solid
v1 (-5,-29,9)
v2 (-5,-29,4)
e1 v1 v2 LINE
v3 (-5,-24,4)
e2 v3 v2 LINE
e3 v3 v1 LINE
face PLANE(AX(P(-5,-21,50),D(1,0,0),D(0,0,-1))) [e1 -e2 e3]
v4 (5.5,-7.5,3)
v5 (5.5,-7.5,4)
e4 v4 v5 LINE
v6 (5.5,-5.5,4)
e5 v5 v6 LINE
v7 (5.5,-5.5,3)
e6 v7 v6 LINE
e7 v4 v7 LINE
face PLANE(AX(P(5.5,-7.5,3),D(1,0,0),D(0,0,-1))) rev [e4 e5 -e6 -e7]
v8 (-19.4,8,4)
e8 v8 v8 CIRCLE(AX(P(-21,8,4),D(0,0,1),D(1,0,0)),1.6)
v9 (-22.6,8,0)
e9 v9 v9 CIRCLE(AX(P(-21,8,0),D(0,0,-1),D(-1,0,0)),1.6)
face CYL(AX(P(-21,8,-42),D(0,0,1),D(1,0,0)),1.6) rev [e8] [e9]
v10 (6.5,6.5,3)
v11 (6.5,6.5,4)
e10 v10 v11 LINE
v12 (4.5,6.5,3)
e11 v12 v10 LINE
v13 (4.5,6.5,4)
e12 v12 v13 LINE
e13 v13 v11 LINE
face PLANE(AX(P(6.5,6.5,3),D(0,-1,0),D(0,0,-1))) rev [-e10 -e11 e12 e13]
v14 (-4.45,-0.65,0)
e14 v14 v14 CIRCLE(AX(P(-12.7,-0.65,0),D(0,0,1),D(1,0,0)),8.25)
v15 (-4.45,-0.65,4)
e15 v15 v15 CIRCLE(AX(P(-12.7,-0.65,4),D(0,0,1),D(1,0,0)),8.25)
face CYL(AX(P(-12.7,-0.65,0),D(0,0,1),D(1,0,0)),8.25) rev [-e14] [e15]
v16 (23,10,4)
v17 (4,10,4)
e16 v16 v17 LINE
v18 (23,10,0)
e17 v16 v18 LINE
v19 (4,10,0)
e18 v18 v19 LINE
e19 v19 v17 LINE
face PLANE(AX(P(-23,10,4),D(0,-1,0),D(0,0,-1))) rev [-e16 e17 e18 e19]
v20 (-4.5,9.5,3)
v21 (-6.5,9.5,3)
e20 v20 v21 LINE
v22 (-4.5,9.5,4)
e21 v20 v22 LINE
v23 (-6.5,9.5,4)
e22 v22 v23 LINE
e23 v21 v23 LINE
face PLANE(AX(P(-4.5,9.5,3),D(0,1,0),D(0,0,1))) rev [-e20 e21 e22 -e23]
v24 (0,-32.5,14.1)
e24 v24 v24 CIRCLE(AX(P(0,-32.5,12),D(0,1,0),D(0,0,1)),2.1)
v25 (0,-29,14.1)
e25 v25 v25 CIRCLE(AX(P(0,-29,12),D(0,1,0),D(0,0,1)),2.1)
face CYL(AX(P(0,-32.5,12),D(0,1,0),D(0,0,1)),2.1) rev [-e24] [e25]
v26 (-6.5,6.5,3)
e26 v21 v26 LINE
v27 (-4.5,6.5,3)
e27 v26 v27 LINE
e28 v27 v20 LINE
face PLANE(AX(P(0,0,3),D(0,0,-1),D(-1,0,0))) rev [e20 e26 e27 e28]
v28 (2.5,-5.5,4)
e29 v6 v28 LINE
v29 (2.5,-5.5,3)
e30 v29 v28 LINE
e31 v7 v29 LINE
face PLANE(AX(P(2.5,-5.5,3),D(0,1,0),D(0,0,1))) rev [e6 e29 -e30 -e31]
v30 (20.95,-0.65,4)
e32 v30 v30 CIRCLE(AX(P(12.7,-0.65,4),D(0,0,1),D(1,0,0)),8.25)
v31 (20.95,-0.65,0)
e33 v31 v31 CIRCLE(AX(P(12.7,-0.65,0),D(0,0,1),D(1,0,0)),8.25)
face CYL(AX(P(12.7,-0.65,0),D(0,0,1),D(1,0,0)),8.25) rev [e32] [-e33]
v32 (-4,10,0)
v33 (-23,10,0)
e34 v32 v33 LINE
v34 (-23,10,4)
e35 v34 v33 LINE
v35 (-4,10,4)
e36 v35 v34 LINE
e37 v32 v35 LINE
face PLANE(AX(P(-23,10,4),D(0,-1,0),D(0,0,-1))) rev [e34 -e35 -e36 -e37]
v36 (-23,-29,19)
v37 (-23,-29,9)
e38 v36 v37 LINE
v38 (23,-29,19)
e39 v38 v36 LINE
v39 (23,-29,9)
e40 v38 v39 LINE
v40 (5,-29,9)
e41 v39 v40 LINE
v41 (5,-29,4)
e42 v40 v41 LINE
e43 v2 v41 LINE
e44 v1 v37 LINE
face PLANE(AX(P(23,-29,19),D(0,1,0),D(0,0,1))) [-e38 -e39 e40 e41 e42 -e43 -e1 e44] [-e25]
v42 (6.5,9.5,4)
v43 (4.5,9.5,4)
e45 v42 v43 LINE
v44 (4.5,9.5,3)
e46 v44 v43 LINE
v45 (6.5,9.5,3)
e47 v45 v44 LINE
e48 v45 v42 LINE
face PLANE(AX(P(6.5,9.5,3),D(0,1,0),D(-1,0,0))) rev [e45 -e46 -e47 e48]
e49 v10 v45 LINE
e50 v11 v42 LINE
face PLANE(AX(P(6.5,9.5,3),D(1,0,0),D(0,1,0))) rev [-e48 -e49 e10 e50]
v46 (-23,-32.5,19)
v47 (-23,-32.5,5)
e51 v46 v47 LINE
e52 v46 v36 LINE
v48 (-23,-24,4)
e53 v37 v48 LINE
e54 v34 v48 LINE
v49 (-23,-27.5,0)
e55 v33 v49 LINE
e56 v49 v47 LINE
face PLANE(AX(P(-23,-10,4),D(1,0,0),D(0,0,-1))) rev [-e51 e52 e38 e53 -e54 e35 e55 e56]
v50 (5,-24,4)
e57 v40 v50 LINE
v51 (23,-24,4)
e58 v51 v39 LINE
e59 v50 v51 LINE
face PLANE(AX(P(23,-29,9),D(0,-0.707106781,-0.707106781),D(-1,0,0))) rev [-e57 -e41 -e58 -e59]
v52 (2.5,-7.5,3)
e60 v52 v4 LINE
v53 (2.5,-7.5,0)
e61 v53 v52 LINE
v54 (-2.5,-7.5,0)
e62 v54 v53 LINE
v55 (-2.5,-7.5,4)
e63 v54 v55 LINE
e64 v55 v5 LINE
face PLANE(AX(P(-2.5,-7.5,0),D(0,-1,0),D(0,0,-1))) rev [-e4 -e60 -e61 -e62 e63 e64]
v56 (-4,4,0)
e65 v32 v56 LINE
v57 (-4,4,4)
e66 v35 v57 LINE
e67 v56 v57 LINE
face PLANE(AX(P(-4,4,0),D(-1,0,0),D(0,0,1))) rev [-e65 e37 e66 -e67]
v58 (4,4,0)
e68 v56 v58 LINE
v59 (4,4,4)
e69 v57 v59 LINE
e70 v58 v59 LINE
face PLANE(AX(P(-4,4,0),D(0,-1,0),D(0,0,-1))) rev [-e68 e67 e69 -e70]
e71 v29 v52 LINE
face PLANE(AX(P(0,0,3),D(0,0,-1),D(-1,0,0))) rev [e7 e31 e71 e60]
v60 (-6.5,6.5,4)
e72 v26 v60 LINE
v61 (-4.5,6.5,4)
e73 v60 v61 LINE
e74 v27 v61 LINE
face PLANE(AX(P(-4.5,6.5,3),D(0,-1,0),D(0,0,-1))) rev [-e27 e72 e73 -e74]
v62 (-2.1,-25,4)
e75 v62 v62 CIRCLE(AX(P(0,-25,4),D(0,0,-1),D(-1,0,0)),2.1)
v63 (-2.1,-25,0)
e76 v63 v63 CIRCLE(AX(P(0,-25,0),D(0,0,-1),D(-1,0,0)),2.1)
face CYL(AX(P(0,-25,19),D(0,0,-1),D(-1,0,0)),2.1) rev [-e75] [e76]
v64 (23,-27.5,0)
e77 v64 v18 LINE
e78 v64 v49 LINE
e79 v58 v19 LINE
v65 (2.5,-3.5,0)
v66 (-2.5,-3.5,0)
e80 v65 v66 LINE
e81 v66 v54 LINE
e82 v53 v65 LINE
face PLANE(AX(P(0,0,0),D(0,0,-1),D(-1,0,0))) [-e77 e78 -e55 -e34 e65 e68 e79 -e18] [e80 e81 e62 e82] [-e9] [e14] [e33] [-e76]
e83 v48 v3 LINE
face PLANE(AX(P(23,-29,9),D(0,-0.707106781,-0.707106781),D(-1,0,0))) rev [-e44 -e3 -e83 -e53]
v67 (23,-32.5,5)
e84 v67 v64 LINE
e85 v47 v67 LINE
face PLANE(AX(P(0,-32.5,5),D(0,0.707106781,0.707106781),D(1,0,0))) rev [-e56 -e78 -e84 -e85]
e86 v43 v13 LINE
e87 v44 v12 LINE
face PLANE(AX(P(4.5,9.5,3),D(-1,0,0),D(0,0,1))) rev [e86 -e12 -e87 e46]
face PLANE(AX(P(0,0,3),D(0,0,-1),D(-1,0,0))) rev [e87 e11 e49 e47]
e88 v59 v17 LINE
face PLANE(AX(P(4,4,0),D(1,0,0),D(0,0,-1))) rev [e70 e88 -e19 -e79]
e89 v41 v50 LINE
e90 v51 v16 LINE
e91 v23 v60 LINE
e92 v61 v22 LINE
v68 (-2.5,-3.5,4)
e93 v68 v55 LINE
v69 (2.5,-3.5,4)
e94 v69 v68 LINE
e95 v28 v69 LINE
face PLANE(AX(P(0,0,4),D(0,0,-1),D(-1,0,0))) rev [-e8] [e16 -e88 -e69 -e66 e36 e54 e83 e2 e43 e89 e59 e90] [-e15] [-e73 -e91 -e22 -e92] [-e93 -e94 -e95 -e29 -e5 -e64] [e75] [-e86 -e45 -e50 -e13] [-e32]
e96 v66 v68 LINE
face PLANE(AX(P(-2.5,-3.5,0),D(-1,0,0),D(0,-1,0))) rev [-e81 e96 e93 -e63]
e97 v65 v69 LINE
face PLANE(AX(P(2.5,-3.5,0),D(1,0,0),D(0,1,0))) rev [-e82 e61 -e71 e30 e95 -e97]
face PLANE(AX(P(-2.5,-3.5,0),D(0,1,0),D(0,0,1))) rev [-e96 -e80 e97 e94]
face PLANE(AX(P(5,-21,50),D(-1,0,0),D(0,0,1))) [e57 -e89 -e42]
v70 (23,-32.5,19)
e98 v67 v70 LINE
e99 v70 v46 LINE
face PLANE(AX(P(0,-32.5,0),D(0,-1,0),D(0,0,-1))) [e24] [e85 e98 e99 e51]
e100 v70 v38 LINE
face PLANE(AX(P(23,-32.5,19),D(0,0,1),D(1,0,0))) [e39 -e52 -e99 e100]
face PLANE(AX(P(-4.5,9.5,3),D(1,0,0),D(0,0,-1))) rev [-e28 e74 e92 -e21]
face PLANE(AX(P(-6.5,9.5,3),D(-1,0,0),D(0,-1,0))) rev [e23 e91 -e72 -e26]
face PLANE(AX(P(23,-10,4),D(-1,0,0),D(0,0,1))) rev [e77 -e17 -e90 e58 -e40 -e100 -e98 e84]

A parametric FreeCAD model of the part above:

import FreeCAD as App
import Part
import Sketcher
Q = App.Units.Quantity


def edges_at(feature, points):
    """Names of the edges that pass closest to the given points."""
    edges = feature.Shape.Edges
    near = lambda p: min(range(len(edges)), key=lambda i: edges[i].distToShape(Part.Vertex(*p))[0])
    return sorted({f"Edge{near(p) + 1}" for p in points})

doc = App.newDocument("Part")
body = doc.addObject("PartDesign::Body", "Body")

# Sketch on XY plane
sketch1 = body.newObject("Sketcher::SketchObject", "Sketch")
sketch1.AttachmentSupport = (doc.getObject("XY_Plane"), [""])
sketch1.MapMode = "FlatFace"
sketch1.addGeometry(Part.LineSegment(App.Vector(-23, 10, 0), App.Vector(-23, -10, 0)), False)
sketch1.addGeometry(Part.LineSegment(App.Vector(-23, -10, 0), App.Vector(23, -10, 0)), False)
sketch1.addGeometry(Part.LineSegment(App.Vector(23, -10, 0), App.Vector(23, 10, 0)), False)
sketch1.addGeometry(Part.LineSegment(App.Vector(23, 10, 0), App.Vector(-23, 10, 0)), False)
sketch1.addConstraint(Sketcher.Constraint("Coincident", 0, 2, 1, 1))
sketch1.addConstraint(Sketcher.Constraint("Coincident", 1, 2, 2, 1))
sketch1.addConstraint(Sketcher.Constraint("Coincident", 2, 2, 3, 1))
sketch1.addConstraint(Sketcher.Constraint("Coincident", 3, 2, 0, 1))
sketch1.addConstraint(Sketcher.Constraint("Vertical", 0))
sketch1.addConstraint(Sketcher.Constraint("Horizontal", 1))
sketch1.addConstraint(Sketcher.Constraint("Vertical", 2))
sketch1.addConstraint(Sketcher.Constraint("Horizontal", 3))
sketch1.addConstraint(Sketcher.Constraint("Symmetric", 0, 2, 2, 2, -1, 1))
sketch1.addConstraint(Sketcher.Constraint("DistanceX", 1, 1, 1, 2, Q("46 mm")))
sketch1.addConstraint(Sketcher.Constraint("DistanceY", 0, 2, 0, 1, Q("20 mm")))
pad1 = body.newObject("PartDesign::Pad", "Pad")
pad1.Profile = sketch1
pad1.Length = 4

# Sketch on XY plane
sketch2 = body.newObject("Sketcher::SketchObject", "Sketch001")
sketch2.AttachmentSupport = (doc.getObject("XY_Plane"), [""])
sketch2.MapMode = "FlatFace"
sketch2.AttachmentOffset = App.Placement(App.Vector(0, 0, 4), App.Rotation())
sketch2.addGeometry(Part.Circle(App.Vector(-13, -1, 0), App.Vector(0, 0, 1), 8), False)
sketch2.addGeometry(Part.Circle(App.Vector(13, -1, 0), App.Vector(0, 0, 1), 8), False)
sketch2.addConstraint(Sketcher.Constraint("Equal", 0, 1))
sketch2.addConstraint(Sketcher.Constraint("Symmetric", 0, 3, 1, 3, -2))
sketch2.addConstraint(Sketcher.Constraint("Diameter", 0, Q("16.5 mm")))
sketch2.addConstraint(Sketcher.Constraint("DistanceX", 0, 3, -1, 1, Q("12.7 mm")))
sketch2.addConstraint(Sketcher.Constraint("DistanceY", 0, 3, -1, 1, Q("0.65 mm")))
pocket1 = body.newObject("PartDesign::Pocket", "Pocket")
pocket1.Profile = sketch2
pocket1.Type = "ThroughAll"

# Sketch on XY plane
sketch3 = body.newObject("Sketcher::SketchObject", "Sketch002")
sketch3.AttachmentSupport = (doc.getObject("XY_Plane"), [""])
sketch3.MapMode = "FlatFace"
sketch3.AttachmentOffset = App.Placement(App.Vector(0, 0, 4), App.Rotation())
sketch3.addGeometry(Part.LineSegment(App.Vector(-4, 10, 0), App.Vector(-4, 4, 0)), False)
sketch3.addGeometry(Part.LineSegment(App.Vector(-4, 4, 0), App.Vector(4, 4, 0)), False)
sketch3.addGeometry(Part.LineSegment(App.Vector(4, 4, 0), App.Vector(4, 10, 0)), False)
sketch3.addGeometry(Part.LineSegment(App.Vector(4, 10, 0), App.Vector(-4, 10, 0)), False)
sketch3.addConstraint(Sketcher.Constraint("Coincident", 0, 2, 1, 1))
sketch3.addConstraint(Sketcher.Constraint("Coincident", 1, 2, 2, 1))
sketch3.addConstraint(Sketcher.Constraint("Coincident", 2, 2, 3, 1))
sketch3.addConstraint(Sketcher.Constraint("Coincident", 3, 2, 0, 1))
sketch3.addConstraint(Sketcher.Constraint("Vertical", 0))
sketch3.addConstraint(Sketcher.Constraint("Horizontal", 1))
sketch3.addConstraint(Sketcher.Constraint("Vertical", 2))
sketch3.addConstraint(Sketcher.Constraint("Horizontal", 3))
sketch3.addConstraint(Sketcher.Constraint("DistanceX", 1, 1, 1, 2, Q("8 mm")))
sketch3.addConstraint(Sketcher.Constraint("DistanceY", 0, 2, 0, 1, Q("6 mm")))
sketch3.addConstraint(Sketcher.Constraint("DistanceX", 0, 2, -1, 1, Q("4 mm")))
sketch3.addConstraint(Sketcher.Constraint("DistanceY", -1, 1, 0, 2, Q("4 mm")))
pocket2 = body.newObject("PartDesign::Pocket", "Pocket001")
pocket2.Profile = sketch3
pocket2.Type = "ThroughAll"

# Sketch on XY plane
sketch4 = body.newObject("Sketcher::SketchObject", "Sketch003")
sketch4.AttachmentSupport = (doc.getObject("XY_Plane"), [""])
sketch4.MapMode = "FlatFace"
sketch4.AttachmentOffset = App.Placement(App.Vector(0, 0, 4), App.Rotation())
sketch4.addGeometry(Part.LineSegment(App.Vector(-2.5, -3.5, 0), App.Vector(-2.5, -7.5, 0)), False)
sketch4.addGeometry(Part.LineSegment(App.Vector(-2.5, -7.5, 0), App.Vector(2.5, -7.5, 0)), False)
sketch4.addGeometry(Part.LineSegment(App.Vector(2.5, -7.5, 0), App.Vector(2.5, -3.5, 0)), False)
sketch4.addGeometry(Part.LineSegment(App.Vector(2.5, -3.5, 0), App.Vector(-2.5, -3.5, 0)), False)
sketch4.addConstraint(Sketcher.Constraint("Coincident", 0, 2, 1, 1))
sketch4.addConstraint(Sketcher.Constraint("Coincident", 1, 2, 2, 1))
sketch4.addConstraint(Sketcher.Constraint("Coincident", 2, 2, 3, 1))
sketch4.addConstraint(Sketcher.Constraint("Coincident", 3, 2, 0, 1))
sketch4.addConstraint(Sketcher.Constraint("Vertical", 0))
sketch4.addConstraint(Sketcher.Constraint("Horizontal", 1))
sketch4.addConstraint(Sketcher.Constraint("Vertical", 2))
sketch4.addConstraint(Sketcher.Constraint("Horizontal", 3))
sketch4.addConstraint(Sketcher.Constraint("DistanceX", 1, 1, 1, 2, Q("5 mm")))
sketch4.addConstraint(Sketcher.Constraint("DistanceY", 0, 2, 0, 1, Q("4 mm")))
sketch4.addConstraint(Sketcher.Constraint("DistanceX", 0, 2, -1, 1, Q("2.5 mm")))
sketch4.addConstraint(Sketcher.Constraint("DistanceY", 0, 2, -1, 1, Q("7.5 mm")))
pocket3 = body.newObject("PartDesign::Pocket", "Pocket002")
pocket3.Profile = sketch4
pocket3.Type = "ThroughAll"

# Sketch on XY plane
sketch5 = body.newObject("Sketcher::SketchObject", "Sketch004")
sketch5.AttachmentSupport = (doc.getObject("XY_Plane"), [""])
sketch5.MapMode = "FlatFace"
sketch5.AttachmentOffset = App.Placement(App.Vector(0, 0, 4), App.Rotation())
sketch5.addGeometry(Part.LineSegment(App.Vector(2.5, -5.5, 0), App.Vector(2.5, -7.5, 0)), False)
sketch5.addGeometry(Part.LineSegment(App.Vector(2.5, -7.5, 0), App.Vector(5.5, -7.5, 0)), False)
sketch5.addGeometry(Part.LineSegment(App.Vector(5.5, -7.5, 0), App.Vector(5.5, -5.5, 0)), False)
sketch5.addGeometry(Part.LineSegment(App.Vector(5.5, -5.5, 0), App.Vector(2.5, -5.5, 0)), False)
sketch5.addGeometry(Part.LineSegment(App.Vector(-6.5, 9.5, 0), App.Vector(-6.5, 6.5, 0)), False)
sketch5.addGeometry(Part.LineSegment(App.Vector(-6.5, 6.5, 0), App.Vector(-4.5, 6.5, 0)), False)
sketch5.addGeometry(Part.LineSegment(App.Vector(-4.5, 6.5, 0), App.Vector(-4.5, 9.5, 0)), False)
sketch5.addGeometry(Part.LineSegment(App.Vector(-4.5, 9.5, 0), App.Vector(-6.5, 9.5, 0)), False)
sketch5.addGeometry(Part.LineSegment(App.Vector(4.5, 9.5, 0), App.Vector(4.5, 6.5, 0)), False)
sketch5.addGeometry(Part.LineSegment(App.Vector(4.5, 6.5, 0), App.Vector(6.5, 6.5, 0)), False)
sketch5.addGeometry(Part.LineSegment(App.Vector(6.5, 6.5, 0), App.Vector(6.5, 9.5, 0)), False)
sketch5.addGeometry(Part.LineSegment(App.Vector(6.5, 9.5, 0), App.Vector(4.5, 9.5, 0)), False)
sketch5.addConstraint(Sketcher.Constraint("Coincident", 0, 2, 1, 1))
sketch5.addConstraint(Sketcher.Constraint("Coincident", 1, 2, 2, 1))
sketch5.addConstraint(Sketcher.Constraint("Coincident", 2, 2, 3, 1))
sketch5.addConstraint(Sketcher.Constraint("Coincident", 3, 2, 0, 1))
sketch5.addConstraint(Sketcher.Constraint("Coincident", 4, 2, 5, 1))
sketch5.addConstraint(Sketcher.Constraint("Coincident", 5, 2, 6, 1))
sketch5.addConstraint(Sketcher.Constraint("Coincident", 6, 2, 7, 1))
sketch5.addConstraint(Sketcher.Constraint("Coincident", 7, 2, 4, 1))
sketch5.addConstraint(Sketcher.Constraint("Coincident", 8, 2, 9, 1))
sketch5.addConstraint(Sketcher.Constraint("Coincident", 9, 2, 10, 1))
sketch5.addConstraint(Sketcher.Constraint("Coincident", 10, 2, 11, 1))
sketch5.addConstraint(Sketcher.Constraint("Coincident", 11, 2, 8, 1))
sketch5.addConstraint(Sketcher.Constraint("Vertical", 0))
sketch5.addConstraint(Sketcher.Constraint("Horizontal", 1))
sketch5.addConstraint(Sketcher.Constraint("Vertical", 2))
sketch5.addConstraint(Sketcher.Constraint("Horizontal", 3))
sketch5.addConstraint(Sketcher.Constraint("Vertical", 4))
sketch5.addConstraint(Sketcher.Constraint("Horizontal", 5))
sketch5.addConstraint(Sketcher.Constraint("Vertical", 6))
sketch5.addConstraint(Sketcher.Constraint("Horizontal", 7))
sketch5.addConstraint(Sketcher.Constraint("Vertical", 8))
sketch5.addConstraint(Sketcher.Constraint("Horizontal", 9))
sketch5.addConstraint(Sketcher.Constraint("Vertical", 10))
sketch5.addConstraint(Sketcher.Constraint("Horizontal", 11))
sketch5.addConstraint(Sketcher.Constraint("Symmetric", 5, 2, 8, 2, -2))
sketch5.addConstraint(Sketcher.Constraint("Symmetric", 7, 2, 10, 2, -2))
sketch5.addConstraint(Sketcher.Constraint("Equal", 11, 0))
sketch5.addConstraint(Sketcher.Constraint("Equal", 3, 4))
sketch5.addConstraint(Sketcher.Constraint("DistanceX", 1, 1, 1, 2, Q("3 mm")))
sketch5.addConstraint(Sketcher.Constraint("DistanceX", 5, 1, 5, 2, Q("2 mm")))
sketch5.addConstraint(Sketcher.Constraint("DistanceX", 4, 2, 3, 2, Q("9 mm")))
sketch5.addConstraint(Sketcher.Constraint("DistanceY", 3, 2, 4, 2, Q("12 mm")))
sketch5.addConstraint(Sketcher.Constraint("DistanceX", 5, 2, 8, 2, Q("9 mm")))
sketch5.addConstraint(Sketcher.Constraint("DistanceY", 0, 2, -1, 1, Q("7.5 mm")))
pocket4 = body.newObject("PartDesign::Pocket", "Pocket003")
pocket4.Profile = sketch5
pocket4.Length = 1

# Sketch on XZ plane
sketch6 = body.newObject("Sketcher::SketchObject", "Sketch005")
sketch6.AttachmentSupport = (doc.getObject("XZ_Plane"), [""])
sketch6.MapMode = "FlatFace"
sketch6.AttachmentOffset = App.Placement(App.Vector(0, 0, 10), App.Rotation())
sketch6.addGeometry(Part.LineSegment(App.Vector(-23, 4, 0), App.Vector(-23, 0, 0)), False)
sketch6.addGeometry(Part.LineSegment(App.Vector(-23, 0, 0), App.Vector(23, 0, 0)), False)
sketch6.addGeometry(Part.LineSegment(App.Vector(23, 0, 0), App.Vector(23, 4, 0)), False)
sketch6.addGeometry(Part.LineSegment(App.Vector(23, 4, 0), App.Vector(-23, 4, 0)), False)
sketch6.addConstraint(Sketcher.Constraint("Coincident", 0, 2, 1, 1))
sketch6.addConstraint(Sketcher.Constraint("Coincident", 1, 2, 2, 1))
sketch6.addConstraint(Sketcher.Constraint("Coincident", 2, 2, 3, 1))
sketch6.addConstraint(Sketcher.Constraint("Coincident", 3, 2, 0, 1))
sketch6.addConstraint(Sketcher.Constraint("Vertical", 0))
sketch6.addConstraint(Sketcher.Constraint("Horizontal", 1))
sketch6.addConstraint(Sketcher.Constraint("Vertical", 2))
sketch6.addConstraint(Sketcher.Constraint("Horizontal", 3))
sketch6.addConstraint(Sketcher.Constraint("Symmetric", 0, 2, 1, 2, -1, 1))
sketch6.addConstraint(Sketcher.Constraint("DistanceX", 1, 1, 1, 2, Q("46 mm")))
sketch6.addConstraint(Sketcher.Constraint("DistanceY", 0, 2, 0, 1, Q("4 mm")))
pad2 = body.newObject("PartDesign::Pad", "Pad001")
pad2.Profile = sketch6
pad2.Length = 22.5

# Sketch on YZ plane
sketch7 = body.newObject("Sketcher::SketchObject", "Sketch006")
sketch7.AttachmentSupport = (doc.getObject("YZ_Plane"), [""])
sketch7.MapMode = "FlatFace"
sketch7.AttachmentOffset = App.Placement(App.Vector(0, 0, -23), App.Rotation())
sketch7.addGeometry(Part.LineSegment(App.Vector(-29, 4, 0), App.Vector(-32.5, 4, 0)), False)
sketch7.addGeometry(Part.LineSegment(App.Vector(-32.5, 4, 0), App.Vector(-32.5, 19, 0)), False)
sketch7.addGeometry(Part.LineSegment(App.Vector(-32.5, 19, 0), App.Vector(-29, 19, 0)), False)
sketch7.addGeometry(Part.LineSegment(App.Vector(-29, 19, 0), App.Vector(-29, 4, 0)), False)
sketch7.addConstraint(Sketcher.Constraint("Coincident", 0, 2, 1, 1))
sketch7.addConstraint(Sketcher.Constraint("Coincident", 1, 2, 2, 1))
sketch7.addConstraint(Sketcher.Constraint("Coincident", 2, 2, 3, 1))
sketch7.addConstraint(Sketcher.Constraint("Coincident", 3, 2, 0, 1))
sketch7.addConstraint(Sketcher.Constraint("Horizontal", 0))
sketch7.addConstraint(Sketcher.Constraint("Vertical", 1))
sketch7.addConstraint(Sketcher.Constraint("Horizontal", 2))
sketch7.addConstraint(Sketcher.Constraint("Vertical", 3))
sketch7.addConstraint(Sketcher.Constraint("DistanceY", 1, 1, 1, 2, Q("15 mm")))
sketch7.addConstraint(Sketcher.Constraint("DistanceX", 0, 2, 0, 1, Q("3.5 mm")))
sketch7.addConstraint(Sketcher.Constraint("DistanceY", -1, 1, 0, 2, Q("4 mm")))
sketch7.addConstraint(Sketcher.Constraint("DistanceX", 2, 2, -1, 1, Q("29 mm")))
pad3 = body.newObject("PartDesign::Pad", "Pad002")
pad3.Profile = sketch7
pad3.Length = 46
doc.recompute()

chamfer = body.newObject("PartDesign::Chamfer", "Chamfer")
chamfer.Base = (pad3, edges_at(pad3, [(0, -29, 4), (0, -32.5, 0)]))
chamfer.Size = 5

# Sketch on XZ plane
sketch8 = body.newObject("Sketcher::SketchObject", "Sketch007")
sketch8.AttachmentSupport = (doc.getObject("XZ_Plane"), [""])
sketch8.MapMode = "FlatFace"
sketch8.AttachmentOffset = App.Placement(App.Vector(0, 0, 29), App.Rotation())
sketch8.addGeometry(Part.Circle(App.Vector(0, 12, 0), App.Vector(0, 0, 1), 2.1), False)
sketch8.addConstraint(Sketcher.Constraint("PointOnObject", 0, 3, -2))
sketch8.addConstraint(Sketcher.Constraint("Diameter", 0, Q("4.2 mm")))
sketch8.addConstraint(Sketcher.Constraint("DistanceY", -1, 1, 0, 3, Q("12 mm")))
pocket5 = body.newObject("PartDesign::Pocket", "Pocket004")
pocket5.Profile = sketch8
pocket5.Type = "ThroughAll"
pocket5.Reversed = True

# Sketch on XY plane
sketch9 = body.newObject("Sketcher::SketchObject", "Sketch008")
sketch9.AttachmentSupport = (doc.getObject("XY_Plane"), [""])
sketch9.MapMode = "FlatFace"
sketch9.addGeometry(Part.Circle(App.Vector(0, -25, 0), App.Vector(0, 0, 1), 2.1), False)
sketch9.addConstraint(Sketcher.Constraint("PointOnObject", 0, 3, -2))
sketch9.addConstraint(Sketcher.Constraint("Diameter", 0, Q("4.2 mm")))
sketch9.addConstraint(Sketcher.Constraint("DistanceY", 0, 3, -1, 1, Q("25 mm")))
pocket6 = body.newObject("PartDesign::Pocket", "Pocket005")
pocket6.Profile = sketch9
pocket6.Type = "ThroughAll"
pocket6.Reversed = True

# Sketch on XY plane
sketch10 = body.newObject("Sketcher::SketchObject", "Sketch009")
sketch10.AttachmentSupport = (doc.getObject("XY_Plane"), [""])
sketch10.MapMode = "FlatFace"
sketch10.AttachmentOffset = App.Placement(App.Vector(0, 0, 4), App.Rotation())
sketch10.addGeometry(Part.LineSegment(App.Vector(-5, -21, 0), App.Vector(-5, -29, 0)), False)
sketch10.addGeometry(Part.LineSegment(App.Vector(-5, -29, 0), App.Vector(5, -29, 0)), False)
sketch10.addGeometry(Part.LineSegment(App.Vector(5, -29, 0), App.Vector(5, -21, 0)), False)
sketch10.addGeometry(Part.LineSegment(App.Vector(5, -21, 0), App.Vector(-5, -21, 0)), False)
sketch10.addConstraint(Sketcher.Constraint("Coincident", 0, 2, 1, 1))
sketch10.addConstraint(Sketcher.Constraint("Coincident", 1, 2, 2, 1))
sketch10.addConstraint(Sketcher.Constraint("Coincident", 2, 2, 3, 1))
sketch10.addConstraint(Sketcher.Constraint("Coincident", 3, 2, 0, 1))
sketch10.addConstraint(Sketcher.Constraint("Vertical", 0))
sketch10.addConstraint(Sketcher.Constraint("Horizontal", 1))
sketch10.addConstraint(Sketcher.Constraint("Vertical", 2))
sketch10.addConstraint(Sketcher.Constraint("Horizontal", 3))
sketch10.addConstraint(Sketcher.Constraint("DistanceX", 1, 1, 1, 2, Q("10 mm")))
sketch10.addConstraint(Sketcher.Constraint("DistanceY", 0, 2, 0, 1, Q("8 mm")))
sketch10.addConstraint(Sketcher.Constraint("DistanceX", 0, 2, -1, 1, Q("5 mm")))
sketch10.addConstraint(Sketcher.Constraint("DistanceY", 0, 2, -1, 1, Q("29 mm")))
pocket7 = body.newObject("PartDesign::Pocket", "Pocket006")
pocket7.Profile = sketch10
pocket7.Length = 46
pocket7.Reversed = True

# Sketch on XY plane
sketch11 = body.newObject("Sketcher::SketchObject", "Sketch010")
sketch11.AttachmentSupport = (doc.getObject("XY_Plane"), [""])
sketch11.MapMode = "FlatFace"
sketch11.AttachmentOffset = App.Placement(App.Vector(0, 0, 4), App.Rotation())
sketch11.addGeometry(Part.Circle(App.Vector(-21, 8, 0), App.Vector(0, 0, 1), 1.6), False)
sketch11.addConstraint(Sketcher.Constraint("Diameter", 0, Q("3.2 mm")))
sketch11.addConstraint(Sketcher.Constraint("DistanceX", 0, 3, -1, 1, Q("21 mm")))
sketch11.addConstraint(Sketcher.Constraint("DistanceY", -1, 1, 0, 3, Q("8 mm")))
pocket8 = body.newObject("PartDesign::Pocket", "Pocket007")
pocket8.Profile = sketch11
pocket8.Length = 46

doc.recompute()
